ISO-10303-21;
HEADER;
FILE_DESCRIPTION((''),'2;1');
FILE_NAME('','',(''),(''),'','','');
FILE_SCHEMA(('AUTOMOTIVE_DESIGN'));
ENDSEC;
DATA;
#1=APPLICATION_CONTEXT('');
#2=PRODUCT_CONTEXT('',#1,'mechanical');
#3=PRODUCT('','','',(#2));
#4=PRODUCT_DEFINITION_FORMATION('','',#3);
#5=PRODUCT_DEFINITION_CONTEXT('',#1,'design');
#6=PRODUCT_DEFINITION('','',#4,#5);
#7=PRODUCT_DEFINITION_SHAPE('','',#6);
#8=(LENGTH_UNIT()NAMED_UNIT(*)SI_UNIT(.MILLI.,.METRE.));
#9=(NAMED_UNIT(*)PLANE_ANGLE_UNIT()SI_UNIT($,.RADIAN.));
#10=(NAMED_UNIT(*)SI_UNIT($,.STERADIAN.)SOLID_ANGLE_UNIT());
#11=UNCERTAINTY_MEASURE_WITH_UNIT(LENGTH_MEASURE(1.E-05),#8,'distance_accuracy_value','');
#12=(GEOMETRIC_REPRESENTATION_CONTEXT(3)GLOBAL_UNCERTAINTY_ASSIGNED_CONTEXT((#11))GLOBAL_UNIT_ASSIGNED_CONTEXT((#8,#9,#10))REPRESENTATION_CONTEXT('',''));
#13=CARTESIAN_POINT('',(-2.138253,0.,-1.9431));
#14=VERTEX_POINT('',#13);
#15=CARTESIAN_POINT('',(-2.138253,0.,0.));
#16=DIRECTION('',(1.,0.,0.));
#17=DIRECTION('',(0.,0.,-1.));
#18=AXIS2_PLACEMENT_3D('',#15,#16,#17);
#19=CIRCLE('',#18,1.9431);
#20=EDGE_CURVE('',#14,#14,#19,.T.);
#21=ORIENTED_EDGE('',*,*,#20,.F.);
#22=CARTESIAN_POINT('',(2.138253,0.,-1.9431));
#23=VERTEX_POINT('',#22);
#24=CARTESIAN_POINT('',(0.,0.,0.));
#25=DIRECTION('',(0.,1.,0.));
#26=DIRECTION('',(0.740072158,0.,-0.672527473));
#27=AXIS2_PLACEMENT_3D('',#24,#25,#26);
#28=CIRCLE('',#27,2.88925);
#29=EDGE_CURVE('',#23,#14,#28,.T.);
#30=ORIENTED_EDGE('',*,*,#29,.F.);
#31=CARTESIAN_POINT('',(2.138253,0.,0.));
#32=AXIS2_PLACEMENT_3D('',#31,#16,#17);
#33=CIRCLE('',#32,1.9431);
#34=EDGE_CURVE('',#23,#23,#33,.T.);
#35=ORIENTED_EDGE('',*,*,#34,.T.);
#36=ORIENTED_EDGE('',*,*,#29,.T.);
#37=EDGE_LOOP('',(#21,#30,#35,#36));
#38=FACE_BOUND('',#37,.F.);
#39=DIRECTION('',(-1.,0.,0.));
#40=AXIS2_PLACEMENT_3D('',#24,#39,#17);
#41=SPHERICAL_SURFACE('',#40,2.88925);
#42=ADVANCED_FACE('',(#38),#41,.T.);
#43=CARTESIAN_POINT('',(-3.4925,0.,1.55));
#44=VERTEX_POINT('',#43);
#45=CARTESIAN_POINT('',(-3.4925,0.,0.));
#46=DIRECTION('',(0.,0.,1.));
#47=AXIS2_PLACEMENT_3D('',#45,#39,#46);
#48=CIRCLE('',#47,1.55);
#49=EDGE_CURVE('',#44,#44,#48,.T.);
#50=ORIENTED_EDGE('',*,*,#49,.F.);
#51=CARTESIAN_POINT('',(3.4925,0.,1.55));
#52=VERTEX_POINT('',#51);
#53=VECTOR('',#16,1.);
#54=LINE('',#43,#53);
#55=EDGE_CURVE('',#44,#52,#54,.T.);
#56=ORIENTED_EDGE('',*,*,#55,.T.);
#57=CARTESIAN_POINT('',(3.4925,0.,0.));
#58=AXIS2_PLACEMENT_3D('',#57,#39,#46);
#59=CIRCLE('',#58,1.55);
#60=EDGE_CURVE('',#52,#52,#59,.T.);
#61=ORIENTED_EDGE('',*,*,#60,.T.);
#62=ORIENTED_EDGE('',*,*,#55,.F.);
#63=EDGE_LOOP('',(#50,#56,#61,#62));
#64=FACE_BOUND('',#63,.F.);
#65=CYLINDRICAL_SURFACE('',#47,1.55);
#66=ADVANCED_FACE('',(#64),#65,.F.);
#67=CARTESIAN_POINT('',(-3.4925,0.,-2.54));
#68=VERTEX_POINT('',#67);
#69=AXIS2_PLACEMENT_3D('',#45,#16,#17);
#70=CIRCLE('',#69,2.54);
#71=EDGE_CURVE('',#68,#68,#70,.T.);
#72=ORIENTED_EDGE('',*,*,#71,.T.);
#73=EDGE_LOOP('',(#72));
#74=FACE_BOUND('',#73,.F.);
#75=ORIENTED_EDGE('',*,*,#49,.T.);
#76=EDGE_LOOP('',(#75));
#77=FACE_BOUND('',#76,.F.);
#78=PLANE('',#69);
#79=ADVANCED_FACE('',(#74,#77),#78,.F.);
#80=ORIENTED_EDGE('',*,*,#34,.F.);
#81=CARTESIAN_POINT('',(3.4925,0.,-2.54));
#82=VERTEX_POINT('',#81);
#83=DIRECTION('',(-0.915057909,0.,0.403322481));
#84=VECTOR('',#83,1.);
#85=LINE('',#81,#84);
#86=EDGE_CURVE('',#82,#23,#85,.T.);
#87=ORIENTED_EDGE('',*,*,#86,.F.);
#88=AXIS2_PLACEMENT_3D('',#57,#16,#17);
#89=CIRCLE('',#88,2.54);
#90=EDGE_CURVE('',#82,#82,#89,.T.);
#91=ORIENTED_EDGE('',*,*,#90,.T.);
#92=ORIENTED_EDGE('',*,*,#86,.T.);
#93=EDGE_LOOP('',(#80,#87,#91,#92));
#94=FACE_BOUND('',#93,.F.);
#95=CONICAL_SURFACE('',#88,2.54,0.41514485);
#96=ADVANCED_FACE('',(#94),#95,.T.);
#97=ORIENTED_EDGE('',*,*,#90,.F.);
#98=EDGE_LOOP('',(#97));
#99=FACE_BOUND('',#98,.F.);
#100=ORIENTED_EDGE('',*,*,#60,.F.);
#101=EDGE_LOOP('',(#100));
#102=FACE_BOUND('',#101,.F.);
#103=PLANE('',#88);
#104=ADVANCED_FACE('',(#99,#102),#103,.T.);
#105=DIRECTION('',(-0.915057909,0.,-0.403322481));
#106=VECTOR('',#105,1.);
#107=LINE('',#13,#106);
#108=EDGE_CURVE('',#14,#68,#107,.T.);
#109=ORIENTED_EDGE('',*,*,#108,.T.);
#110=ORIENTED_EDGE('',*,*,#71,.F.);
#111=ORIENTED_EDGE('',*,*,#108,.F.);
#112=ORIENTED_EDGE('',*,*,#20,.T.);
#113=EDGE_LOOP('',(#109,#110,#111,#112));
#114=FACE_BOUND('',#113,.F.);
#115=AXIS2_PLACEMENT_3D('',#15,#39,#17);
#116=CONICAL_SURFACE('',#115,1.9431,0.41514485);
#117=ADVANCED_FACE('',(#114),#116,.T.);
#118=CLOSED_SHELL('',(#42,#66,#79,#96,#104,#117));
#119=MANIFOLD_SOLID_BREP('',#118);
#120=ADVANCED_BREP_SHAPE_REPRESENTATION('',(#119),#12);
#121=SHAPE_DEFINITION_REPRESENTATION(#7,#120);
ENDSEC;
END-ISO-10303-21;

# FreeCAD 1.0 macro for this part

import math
import FreeCAD as App
import Part
import Sketcher

V = App.Vector

doc = App.newDocument("Part")
body = doc.addObject("PartDesign::Body", "Body")

sketch1 = doc.addObject("Sketcher::SketchObject", "Sketch")
body.addObject(sketch1)
sketch1.AttachmentSupport = (doc.XZ_Plane, [""])
sketch1.MapMode = "FlatFace"
sketch1.addGeometry([
    Part.LineSegment(V(3.5, 0, 0), V(3.5, -2.5, 0)),
    Part.LineSegment(V(3.5, -2.5, 0), V(2.1, -1.9, 0)),
    Part.ArcOfCircle(Part.Circle(V(0, 0, 0), V(0, 0, 1), 2.9), math.radians(-138), math.radians(-42)),
    Part.LineSegment(V(-2.1, -1.9, 0), V(-3.5, -2.5, 0)),
    Part.LineSegment(V(-3.5, -2.5, 0), V(-3.5, 0, 0)),
    Part.LineSegment(V(-3.5, 0, 0), V(3.5, 0, 0)),
], False)
sketch1.addConstraint([
    Sketcher.Constraint("Coincident", 0, 2, 1, 1),
    Sketcher.Constraint("Coincident", 1, 2, 2, 2),
    Sketcher.Constraint("Coincident", 2, 1, 3, 1),
    Sketcher.Constraint("Coincident", 3, 2, 4, 1),
    Sketcher.Constraint("Coincident", 4, 2, 5, 1),
    Sketcher.Constraint("Coincident", 5, 2, 0, 1),
    Sketcher.Constraint("Vertical", 0),
    Sketcher.Constraint("Vertical", 4),
    Sketcher.Constraint("Horizontal", 5),
    Sketcher.Constraint("Coincident", 2, 3, -1, 1),
    Sketcher.Constraint("Symmetric", 4, 2, 5, 2, -1, 1),
    Sketcher.Constraint("Horizontal", 1, 2, 2, 1),
    Sketcher.Constraint("Horizontal", 0, 2, 3, 2),
    Sketcher.Constraint("DistanceY", 0, 2, 0, 1, 2.54),
    Sketcher.Constraint("DistanceX", 5, 1, 5, 2, 6.985),
    Sketcher.Constraint("Radius", 2, 2.88925),
    Sketcher.Constraint("DistanceY", 1, 2, -1, 1, 1.9431),
])
revolution = doc.addObject("PartDesign::Revolution", "Revolution")
body.addObject(revolution)
revolution.Profile = sketch1
revolution.ReferenceAxis = (sketch1, ["H_Axis"])
revolution.Angle = 360

sketch2 = doc.addObject("Sketcher::SketchObject", "Sketch001")
body.addObject(sketch2)
sketch2.AttachmentSupport = (doc.YZ_Plane, [""])
sketch2.MapMode = "FlatFace"
sketch2.AttachmentOffset = App.Placement(V(0, 0, -3.4925), App.Rotation())
sketch2.addGeometry(Part.Circle(V(0, 0, 0), V(0, 0, 1), 1.6), False)
sketch2.addConstraint([
    Sketcher.Constraint("Coincident", 0, 3, -1, 1),
    Sketcher.Constraint("Diameter", 0, 3.1),
])
pocket1 = doc.addObject("PartDesign::Pocket", "Pocket")
body.addObject(pocket1)
pocket1.Profile = sketch2
pocket1.Length = 10
pocket1.Reversed = True

doc.recompute()
